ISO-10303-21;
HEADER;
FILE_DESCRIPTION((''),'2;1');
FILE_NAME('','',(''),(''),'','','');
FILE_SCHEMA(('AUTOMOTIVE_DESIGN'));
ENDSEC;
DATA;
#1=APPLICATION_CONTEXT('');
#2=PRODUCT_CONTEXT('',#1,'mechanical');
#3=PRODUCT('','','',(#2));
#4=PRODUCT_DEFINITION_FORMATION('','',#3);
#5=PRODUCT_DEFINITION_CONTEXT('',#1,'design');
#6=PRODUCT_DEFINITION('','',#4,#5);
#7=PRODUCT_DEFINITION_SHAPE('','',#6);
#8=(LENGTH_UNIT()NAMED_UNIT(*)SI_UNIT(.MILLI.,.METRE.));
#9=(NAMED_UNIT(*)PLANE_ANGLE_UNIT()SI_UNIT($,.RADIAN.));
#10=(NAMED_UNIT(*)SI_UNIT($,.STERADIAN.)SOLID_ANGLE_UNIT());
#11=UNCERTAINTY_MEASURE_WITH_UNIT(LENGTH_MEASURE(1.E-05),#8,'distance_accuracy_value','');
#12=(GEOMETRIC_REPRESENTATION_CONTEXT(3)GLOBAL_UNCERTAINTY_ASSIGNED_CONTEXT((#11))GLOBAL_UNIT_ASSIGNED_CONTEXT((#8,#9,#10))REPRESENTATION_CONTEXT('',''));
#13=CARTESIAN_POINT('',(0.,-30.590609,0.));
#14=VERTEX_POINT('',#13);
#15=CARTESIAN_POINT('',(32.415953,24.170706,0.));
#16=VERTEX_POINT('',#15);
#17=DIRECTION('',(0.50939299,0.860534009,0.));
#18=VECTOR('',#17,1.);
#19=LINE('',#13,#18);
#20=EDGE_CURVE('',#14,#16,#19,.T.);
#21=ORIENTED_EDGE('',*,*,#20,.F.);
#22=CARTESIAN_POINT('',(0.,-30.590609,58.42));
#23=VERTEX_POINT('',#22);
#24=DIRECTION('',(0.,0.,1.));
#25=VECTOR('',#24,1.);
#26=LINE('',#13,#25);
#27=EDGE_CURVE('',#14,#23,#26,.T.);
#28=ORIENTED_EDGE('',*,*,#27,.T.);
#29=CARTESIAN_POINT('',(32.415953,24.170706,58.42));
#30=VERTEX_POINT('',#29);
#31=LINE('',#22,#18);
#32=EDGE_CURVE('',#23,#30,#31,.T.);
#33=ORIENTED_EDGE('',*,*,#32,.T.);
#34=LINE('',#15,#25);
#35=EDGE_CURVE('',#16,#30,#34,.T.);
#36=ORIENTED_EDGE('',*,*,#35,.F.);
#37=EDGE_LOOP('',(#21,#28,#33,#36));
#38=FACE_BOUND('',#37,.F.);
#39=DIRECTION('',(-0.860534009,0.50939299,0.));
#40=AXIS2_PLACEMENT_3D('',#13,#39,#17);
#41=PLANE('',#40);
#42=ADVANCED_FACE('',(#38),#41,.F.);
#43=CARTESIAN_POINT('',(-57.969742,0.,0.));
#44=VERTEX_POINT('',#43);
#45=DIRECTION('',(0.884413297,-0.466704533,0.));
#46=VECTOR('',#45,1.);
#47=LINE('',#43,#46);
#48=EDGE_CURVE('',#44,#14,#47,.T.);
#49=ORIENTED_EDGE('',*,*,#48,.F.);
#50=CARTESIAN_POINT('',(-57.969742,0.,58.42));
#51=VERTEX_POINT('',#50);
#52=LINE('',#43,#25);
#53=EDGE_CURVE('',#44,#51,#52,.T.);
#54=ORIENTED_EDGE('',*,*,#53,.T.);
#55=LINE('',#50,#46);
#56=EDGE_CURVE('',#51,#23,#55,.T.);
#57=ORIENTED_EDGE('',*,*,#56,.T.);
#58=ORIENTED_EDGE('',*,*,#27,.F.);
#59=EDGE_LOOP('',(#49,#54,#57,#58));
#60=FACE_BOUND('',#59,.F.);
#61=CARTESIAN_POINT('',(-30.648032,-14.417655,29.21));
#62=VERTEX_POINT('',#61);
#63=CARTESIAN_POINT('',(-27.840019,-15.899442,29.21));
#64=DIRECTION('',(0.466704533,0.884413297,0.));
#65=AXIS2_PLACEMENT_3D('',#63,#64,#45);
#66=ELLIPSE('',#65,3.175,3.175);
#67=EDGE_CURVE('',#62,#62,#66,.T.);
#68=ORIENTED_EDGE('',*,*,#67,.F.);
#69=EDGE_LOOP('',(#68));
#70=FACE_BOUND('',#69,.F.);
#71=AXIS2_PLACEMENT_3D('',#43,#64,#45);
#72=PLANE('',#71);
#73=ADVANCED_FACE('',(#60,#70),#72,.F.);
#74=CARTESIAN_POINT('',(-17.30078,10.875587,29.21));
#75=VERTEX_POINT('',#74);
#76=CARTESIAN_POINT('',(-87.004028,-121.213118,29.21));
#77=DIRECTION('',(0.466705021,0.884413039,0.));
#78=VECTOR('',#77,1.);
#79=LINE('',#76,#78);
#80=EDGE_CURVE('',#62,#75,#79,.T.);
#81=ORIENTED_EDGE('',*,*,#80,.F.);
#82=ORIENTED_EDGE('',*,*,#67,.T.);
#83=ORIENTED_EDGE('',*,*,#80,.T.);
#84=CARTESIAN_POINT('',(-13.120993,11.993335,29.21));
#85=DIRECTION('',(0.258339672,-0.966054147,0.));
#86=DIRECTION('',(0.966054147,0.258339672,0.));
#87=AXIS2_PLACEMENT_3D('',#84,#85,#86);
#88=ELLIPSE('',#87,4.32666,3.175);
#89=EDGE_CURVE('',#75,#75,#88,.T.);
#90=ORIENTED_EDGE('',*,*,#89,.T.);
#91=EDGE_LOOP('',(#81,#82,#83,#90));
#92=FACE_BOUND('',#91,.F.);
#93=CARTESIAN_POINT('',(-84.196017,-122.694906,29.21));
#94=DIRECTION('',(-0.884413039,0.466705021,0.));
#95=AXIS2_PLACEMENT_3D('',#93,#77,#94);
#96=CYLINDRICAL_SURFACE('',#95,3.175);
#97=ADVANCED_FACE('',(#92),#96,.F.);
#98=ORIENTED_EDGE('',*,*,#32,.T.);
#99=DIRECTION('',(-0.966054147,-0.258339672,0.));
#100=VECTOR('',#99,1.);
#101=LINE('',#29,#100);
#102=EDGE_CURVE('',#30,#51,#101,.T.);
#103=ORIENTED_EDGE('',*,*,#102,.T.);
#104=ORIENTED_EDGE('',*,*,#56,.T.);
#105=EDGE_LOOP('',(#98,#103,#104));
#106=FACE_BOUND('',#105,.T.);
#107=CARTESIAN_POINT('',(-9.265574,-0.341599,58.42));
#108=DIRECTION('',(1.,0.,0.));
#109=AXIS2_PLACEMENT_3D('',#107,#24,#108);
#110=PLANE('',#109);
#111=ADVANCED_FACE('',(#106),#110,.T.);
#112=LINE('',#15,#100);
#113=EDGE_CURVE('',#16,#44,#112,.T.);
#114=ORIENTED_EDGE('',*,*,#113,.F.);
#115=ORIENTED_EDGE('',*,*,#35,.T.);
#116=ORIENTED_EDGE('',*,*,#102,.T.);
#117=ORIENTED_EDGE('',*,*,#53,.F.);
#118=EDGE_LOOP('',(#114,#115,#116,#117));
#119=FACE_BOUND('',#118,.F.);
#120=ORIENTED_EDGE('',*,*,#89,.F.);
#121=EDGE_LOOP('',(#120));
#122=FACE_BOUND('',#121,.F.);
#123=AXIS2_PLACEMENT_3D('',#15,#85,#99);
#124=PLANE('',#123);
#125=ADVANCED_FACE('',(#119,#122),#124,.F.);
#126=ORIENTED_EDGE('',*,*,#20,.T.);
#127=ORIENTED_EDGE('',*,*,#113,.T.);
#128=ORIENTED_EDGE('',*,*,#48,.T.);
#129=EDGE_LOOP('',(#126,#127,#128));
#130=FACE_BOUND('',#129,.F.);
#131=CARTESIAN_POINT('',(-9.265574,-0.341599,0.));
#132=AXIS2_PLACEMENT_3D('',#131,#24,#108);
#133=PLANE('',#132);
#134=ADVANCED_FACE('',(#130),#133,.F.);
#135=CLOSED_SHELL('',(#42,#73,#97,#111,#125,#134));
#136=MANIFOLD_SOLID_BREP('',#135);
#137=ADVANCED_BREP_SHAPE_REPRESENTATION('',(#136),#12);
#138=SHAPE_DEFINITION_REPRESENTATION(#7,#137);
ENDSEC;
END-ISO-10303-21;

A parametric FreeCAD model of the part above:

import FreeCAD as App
import Part
import Sketcher

V = App.Vector
Q = App.Units.Quantity


def add_polygon(sketch, points):
    """Adds a closed chain of lines whose ends are joined by coincident constraints."""
    first, n = sketch.GeometryCount, len(points)
    for a, b in zip(points, points[1:] + points[:1]):
        sketch.addGeometry(Part.LineSegment(App.Vector(*a, 0), App.Vector(*b, 0)), False)
    for i in range(n):
        sketch.addConstraint(Sketcher.Constraint("Coincident", first + i, 2, first + (i + 1) % n, 1))

doc = App.newDocument("Part")
body = doc.addObject("PartDesign::Body", "Body")

sketch1 = body.newObject("Sketcher::SketchObject", "Sketch")
sketch1.AttachmentSupport = (doc.getObject("XY_Plane"), [""])
sketch1.MapMode = "FlatFace"
add_polygon(sketch1, [(0, -31), (32, 24), (-58, 0)])
sketch1.addConstraint([
    Sketcher.Constraint("PointOnObject", 1, 2, -1),
    Sketcher.Constraint("PointOnObject", 2, 2, -2),
    Sketcher.Constraint("DistanceX", 1, 2, -1, 1, Q("57.969742 mm")),
    Sketcher.Constraint("DistanceY", 2, 2, -1, 1, Q("30.590609 mm")),
    Sketcher.Constraint("Distance", 0, Q("63.636433 mm")),
    Sketcher.Constraint("Distance", 1, Q("93.561728 mm")),
])
pad1 = body.newObject("PartDesign::Pad", "Pad")
pad1.Profile = sketch1
pad1.Length = Q("2.3 in")

sketch2 = body.newObject("Sketcher::SketchObject", "Sketch001")
sketch2.Placement = App.Placement(V(-12.626584, -23.927566, 0), App.Rotation(V(0.884413039, -0.466705021, 0), V(0, 0, 1), V(-0.466705021, -0.884413039, 0), "ZXY"))
sketch2.addGeometry(Part.Circle(V(-17.2, 29.2, 0), V(0, 0, 1), 3.2), False)
sketch2.addConstraint([
    Sketcher.Constraint("Diameter", 0, Q("0.25 in")),
    Sketcher.Constraint("DistanceY", -1, 1, 0, 3, Q("1.15 in")),
    Sketcher.Constraint("DistanceX", 0, 3, -1, 1, Q("17.201727 mm")),
])
doc.recompute()
hole = body.newObject("PartDesign::Hole", "Hole")
hole.Profile = sketch2
hole.ThreadType = "None"
hole.Diameter = Q("0.25 in")
hole.DepthType = "ThroughAll"

doc.recompute()
